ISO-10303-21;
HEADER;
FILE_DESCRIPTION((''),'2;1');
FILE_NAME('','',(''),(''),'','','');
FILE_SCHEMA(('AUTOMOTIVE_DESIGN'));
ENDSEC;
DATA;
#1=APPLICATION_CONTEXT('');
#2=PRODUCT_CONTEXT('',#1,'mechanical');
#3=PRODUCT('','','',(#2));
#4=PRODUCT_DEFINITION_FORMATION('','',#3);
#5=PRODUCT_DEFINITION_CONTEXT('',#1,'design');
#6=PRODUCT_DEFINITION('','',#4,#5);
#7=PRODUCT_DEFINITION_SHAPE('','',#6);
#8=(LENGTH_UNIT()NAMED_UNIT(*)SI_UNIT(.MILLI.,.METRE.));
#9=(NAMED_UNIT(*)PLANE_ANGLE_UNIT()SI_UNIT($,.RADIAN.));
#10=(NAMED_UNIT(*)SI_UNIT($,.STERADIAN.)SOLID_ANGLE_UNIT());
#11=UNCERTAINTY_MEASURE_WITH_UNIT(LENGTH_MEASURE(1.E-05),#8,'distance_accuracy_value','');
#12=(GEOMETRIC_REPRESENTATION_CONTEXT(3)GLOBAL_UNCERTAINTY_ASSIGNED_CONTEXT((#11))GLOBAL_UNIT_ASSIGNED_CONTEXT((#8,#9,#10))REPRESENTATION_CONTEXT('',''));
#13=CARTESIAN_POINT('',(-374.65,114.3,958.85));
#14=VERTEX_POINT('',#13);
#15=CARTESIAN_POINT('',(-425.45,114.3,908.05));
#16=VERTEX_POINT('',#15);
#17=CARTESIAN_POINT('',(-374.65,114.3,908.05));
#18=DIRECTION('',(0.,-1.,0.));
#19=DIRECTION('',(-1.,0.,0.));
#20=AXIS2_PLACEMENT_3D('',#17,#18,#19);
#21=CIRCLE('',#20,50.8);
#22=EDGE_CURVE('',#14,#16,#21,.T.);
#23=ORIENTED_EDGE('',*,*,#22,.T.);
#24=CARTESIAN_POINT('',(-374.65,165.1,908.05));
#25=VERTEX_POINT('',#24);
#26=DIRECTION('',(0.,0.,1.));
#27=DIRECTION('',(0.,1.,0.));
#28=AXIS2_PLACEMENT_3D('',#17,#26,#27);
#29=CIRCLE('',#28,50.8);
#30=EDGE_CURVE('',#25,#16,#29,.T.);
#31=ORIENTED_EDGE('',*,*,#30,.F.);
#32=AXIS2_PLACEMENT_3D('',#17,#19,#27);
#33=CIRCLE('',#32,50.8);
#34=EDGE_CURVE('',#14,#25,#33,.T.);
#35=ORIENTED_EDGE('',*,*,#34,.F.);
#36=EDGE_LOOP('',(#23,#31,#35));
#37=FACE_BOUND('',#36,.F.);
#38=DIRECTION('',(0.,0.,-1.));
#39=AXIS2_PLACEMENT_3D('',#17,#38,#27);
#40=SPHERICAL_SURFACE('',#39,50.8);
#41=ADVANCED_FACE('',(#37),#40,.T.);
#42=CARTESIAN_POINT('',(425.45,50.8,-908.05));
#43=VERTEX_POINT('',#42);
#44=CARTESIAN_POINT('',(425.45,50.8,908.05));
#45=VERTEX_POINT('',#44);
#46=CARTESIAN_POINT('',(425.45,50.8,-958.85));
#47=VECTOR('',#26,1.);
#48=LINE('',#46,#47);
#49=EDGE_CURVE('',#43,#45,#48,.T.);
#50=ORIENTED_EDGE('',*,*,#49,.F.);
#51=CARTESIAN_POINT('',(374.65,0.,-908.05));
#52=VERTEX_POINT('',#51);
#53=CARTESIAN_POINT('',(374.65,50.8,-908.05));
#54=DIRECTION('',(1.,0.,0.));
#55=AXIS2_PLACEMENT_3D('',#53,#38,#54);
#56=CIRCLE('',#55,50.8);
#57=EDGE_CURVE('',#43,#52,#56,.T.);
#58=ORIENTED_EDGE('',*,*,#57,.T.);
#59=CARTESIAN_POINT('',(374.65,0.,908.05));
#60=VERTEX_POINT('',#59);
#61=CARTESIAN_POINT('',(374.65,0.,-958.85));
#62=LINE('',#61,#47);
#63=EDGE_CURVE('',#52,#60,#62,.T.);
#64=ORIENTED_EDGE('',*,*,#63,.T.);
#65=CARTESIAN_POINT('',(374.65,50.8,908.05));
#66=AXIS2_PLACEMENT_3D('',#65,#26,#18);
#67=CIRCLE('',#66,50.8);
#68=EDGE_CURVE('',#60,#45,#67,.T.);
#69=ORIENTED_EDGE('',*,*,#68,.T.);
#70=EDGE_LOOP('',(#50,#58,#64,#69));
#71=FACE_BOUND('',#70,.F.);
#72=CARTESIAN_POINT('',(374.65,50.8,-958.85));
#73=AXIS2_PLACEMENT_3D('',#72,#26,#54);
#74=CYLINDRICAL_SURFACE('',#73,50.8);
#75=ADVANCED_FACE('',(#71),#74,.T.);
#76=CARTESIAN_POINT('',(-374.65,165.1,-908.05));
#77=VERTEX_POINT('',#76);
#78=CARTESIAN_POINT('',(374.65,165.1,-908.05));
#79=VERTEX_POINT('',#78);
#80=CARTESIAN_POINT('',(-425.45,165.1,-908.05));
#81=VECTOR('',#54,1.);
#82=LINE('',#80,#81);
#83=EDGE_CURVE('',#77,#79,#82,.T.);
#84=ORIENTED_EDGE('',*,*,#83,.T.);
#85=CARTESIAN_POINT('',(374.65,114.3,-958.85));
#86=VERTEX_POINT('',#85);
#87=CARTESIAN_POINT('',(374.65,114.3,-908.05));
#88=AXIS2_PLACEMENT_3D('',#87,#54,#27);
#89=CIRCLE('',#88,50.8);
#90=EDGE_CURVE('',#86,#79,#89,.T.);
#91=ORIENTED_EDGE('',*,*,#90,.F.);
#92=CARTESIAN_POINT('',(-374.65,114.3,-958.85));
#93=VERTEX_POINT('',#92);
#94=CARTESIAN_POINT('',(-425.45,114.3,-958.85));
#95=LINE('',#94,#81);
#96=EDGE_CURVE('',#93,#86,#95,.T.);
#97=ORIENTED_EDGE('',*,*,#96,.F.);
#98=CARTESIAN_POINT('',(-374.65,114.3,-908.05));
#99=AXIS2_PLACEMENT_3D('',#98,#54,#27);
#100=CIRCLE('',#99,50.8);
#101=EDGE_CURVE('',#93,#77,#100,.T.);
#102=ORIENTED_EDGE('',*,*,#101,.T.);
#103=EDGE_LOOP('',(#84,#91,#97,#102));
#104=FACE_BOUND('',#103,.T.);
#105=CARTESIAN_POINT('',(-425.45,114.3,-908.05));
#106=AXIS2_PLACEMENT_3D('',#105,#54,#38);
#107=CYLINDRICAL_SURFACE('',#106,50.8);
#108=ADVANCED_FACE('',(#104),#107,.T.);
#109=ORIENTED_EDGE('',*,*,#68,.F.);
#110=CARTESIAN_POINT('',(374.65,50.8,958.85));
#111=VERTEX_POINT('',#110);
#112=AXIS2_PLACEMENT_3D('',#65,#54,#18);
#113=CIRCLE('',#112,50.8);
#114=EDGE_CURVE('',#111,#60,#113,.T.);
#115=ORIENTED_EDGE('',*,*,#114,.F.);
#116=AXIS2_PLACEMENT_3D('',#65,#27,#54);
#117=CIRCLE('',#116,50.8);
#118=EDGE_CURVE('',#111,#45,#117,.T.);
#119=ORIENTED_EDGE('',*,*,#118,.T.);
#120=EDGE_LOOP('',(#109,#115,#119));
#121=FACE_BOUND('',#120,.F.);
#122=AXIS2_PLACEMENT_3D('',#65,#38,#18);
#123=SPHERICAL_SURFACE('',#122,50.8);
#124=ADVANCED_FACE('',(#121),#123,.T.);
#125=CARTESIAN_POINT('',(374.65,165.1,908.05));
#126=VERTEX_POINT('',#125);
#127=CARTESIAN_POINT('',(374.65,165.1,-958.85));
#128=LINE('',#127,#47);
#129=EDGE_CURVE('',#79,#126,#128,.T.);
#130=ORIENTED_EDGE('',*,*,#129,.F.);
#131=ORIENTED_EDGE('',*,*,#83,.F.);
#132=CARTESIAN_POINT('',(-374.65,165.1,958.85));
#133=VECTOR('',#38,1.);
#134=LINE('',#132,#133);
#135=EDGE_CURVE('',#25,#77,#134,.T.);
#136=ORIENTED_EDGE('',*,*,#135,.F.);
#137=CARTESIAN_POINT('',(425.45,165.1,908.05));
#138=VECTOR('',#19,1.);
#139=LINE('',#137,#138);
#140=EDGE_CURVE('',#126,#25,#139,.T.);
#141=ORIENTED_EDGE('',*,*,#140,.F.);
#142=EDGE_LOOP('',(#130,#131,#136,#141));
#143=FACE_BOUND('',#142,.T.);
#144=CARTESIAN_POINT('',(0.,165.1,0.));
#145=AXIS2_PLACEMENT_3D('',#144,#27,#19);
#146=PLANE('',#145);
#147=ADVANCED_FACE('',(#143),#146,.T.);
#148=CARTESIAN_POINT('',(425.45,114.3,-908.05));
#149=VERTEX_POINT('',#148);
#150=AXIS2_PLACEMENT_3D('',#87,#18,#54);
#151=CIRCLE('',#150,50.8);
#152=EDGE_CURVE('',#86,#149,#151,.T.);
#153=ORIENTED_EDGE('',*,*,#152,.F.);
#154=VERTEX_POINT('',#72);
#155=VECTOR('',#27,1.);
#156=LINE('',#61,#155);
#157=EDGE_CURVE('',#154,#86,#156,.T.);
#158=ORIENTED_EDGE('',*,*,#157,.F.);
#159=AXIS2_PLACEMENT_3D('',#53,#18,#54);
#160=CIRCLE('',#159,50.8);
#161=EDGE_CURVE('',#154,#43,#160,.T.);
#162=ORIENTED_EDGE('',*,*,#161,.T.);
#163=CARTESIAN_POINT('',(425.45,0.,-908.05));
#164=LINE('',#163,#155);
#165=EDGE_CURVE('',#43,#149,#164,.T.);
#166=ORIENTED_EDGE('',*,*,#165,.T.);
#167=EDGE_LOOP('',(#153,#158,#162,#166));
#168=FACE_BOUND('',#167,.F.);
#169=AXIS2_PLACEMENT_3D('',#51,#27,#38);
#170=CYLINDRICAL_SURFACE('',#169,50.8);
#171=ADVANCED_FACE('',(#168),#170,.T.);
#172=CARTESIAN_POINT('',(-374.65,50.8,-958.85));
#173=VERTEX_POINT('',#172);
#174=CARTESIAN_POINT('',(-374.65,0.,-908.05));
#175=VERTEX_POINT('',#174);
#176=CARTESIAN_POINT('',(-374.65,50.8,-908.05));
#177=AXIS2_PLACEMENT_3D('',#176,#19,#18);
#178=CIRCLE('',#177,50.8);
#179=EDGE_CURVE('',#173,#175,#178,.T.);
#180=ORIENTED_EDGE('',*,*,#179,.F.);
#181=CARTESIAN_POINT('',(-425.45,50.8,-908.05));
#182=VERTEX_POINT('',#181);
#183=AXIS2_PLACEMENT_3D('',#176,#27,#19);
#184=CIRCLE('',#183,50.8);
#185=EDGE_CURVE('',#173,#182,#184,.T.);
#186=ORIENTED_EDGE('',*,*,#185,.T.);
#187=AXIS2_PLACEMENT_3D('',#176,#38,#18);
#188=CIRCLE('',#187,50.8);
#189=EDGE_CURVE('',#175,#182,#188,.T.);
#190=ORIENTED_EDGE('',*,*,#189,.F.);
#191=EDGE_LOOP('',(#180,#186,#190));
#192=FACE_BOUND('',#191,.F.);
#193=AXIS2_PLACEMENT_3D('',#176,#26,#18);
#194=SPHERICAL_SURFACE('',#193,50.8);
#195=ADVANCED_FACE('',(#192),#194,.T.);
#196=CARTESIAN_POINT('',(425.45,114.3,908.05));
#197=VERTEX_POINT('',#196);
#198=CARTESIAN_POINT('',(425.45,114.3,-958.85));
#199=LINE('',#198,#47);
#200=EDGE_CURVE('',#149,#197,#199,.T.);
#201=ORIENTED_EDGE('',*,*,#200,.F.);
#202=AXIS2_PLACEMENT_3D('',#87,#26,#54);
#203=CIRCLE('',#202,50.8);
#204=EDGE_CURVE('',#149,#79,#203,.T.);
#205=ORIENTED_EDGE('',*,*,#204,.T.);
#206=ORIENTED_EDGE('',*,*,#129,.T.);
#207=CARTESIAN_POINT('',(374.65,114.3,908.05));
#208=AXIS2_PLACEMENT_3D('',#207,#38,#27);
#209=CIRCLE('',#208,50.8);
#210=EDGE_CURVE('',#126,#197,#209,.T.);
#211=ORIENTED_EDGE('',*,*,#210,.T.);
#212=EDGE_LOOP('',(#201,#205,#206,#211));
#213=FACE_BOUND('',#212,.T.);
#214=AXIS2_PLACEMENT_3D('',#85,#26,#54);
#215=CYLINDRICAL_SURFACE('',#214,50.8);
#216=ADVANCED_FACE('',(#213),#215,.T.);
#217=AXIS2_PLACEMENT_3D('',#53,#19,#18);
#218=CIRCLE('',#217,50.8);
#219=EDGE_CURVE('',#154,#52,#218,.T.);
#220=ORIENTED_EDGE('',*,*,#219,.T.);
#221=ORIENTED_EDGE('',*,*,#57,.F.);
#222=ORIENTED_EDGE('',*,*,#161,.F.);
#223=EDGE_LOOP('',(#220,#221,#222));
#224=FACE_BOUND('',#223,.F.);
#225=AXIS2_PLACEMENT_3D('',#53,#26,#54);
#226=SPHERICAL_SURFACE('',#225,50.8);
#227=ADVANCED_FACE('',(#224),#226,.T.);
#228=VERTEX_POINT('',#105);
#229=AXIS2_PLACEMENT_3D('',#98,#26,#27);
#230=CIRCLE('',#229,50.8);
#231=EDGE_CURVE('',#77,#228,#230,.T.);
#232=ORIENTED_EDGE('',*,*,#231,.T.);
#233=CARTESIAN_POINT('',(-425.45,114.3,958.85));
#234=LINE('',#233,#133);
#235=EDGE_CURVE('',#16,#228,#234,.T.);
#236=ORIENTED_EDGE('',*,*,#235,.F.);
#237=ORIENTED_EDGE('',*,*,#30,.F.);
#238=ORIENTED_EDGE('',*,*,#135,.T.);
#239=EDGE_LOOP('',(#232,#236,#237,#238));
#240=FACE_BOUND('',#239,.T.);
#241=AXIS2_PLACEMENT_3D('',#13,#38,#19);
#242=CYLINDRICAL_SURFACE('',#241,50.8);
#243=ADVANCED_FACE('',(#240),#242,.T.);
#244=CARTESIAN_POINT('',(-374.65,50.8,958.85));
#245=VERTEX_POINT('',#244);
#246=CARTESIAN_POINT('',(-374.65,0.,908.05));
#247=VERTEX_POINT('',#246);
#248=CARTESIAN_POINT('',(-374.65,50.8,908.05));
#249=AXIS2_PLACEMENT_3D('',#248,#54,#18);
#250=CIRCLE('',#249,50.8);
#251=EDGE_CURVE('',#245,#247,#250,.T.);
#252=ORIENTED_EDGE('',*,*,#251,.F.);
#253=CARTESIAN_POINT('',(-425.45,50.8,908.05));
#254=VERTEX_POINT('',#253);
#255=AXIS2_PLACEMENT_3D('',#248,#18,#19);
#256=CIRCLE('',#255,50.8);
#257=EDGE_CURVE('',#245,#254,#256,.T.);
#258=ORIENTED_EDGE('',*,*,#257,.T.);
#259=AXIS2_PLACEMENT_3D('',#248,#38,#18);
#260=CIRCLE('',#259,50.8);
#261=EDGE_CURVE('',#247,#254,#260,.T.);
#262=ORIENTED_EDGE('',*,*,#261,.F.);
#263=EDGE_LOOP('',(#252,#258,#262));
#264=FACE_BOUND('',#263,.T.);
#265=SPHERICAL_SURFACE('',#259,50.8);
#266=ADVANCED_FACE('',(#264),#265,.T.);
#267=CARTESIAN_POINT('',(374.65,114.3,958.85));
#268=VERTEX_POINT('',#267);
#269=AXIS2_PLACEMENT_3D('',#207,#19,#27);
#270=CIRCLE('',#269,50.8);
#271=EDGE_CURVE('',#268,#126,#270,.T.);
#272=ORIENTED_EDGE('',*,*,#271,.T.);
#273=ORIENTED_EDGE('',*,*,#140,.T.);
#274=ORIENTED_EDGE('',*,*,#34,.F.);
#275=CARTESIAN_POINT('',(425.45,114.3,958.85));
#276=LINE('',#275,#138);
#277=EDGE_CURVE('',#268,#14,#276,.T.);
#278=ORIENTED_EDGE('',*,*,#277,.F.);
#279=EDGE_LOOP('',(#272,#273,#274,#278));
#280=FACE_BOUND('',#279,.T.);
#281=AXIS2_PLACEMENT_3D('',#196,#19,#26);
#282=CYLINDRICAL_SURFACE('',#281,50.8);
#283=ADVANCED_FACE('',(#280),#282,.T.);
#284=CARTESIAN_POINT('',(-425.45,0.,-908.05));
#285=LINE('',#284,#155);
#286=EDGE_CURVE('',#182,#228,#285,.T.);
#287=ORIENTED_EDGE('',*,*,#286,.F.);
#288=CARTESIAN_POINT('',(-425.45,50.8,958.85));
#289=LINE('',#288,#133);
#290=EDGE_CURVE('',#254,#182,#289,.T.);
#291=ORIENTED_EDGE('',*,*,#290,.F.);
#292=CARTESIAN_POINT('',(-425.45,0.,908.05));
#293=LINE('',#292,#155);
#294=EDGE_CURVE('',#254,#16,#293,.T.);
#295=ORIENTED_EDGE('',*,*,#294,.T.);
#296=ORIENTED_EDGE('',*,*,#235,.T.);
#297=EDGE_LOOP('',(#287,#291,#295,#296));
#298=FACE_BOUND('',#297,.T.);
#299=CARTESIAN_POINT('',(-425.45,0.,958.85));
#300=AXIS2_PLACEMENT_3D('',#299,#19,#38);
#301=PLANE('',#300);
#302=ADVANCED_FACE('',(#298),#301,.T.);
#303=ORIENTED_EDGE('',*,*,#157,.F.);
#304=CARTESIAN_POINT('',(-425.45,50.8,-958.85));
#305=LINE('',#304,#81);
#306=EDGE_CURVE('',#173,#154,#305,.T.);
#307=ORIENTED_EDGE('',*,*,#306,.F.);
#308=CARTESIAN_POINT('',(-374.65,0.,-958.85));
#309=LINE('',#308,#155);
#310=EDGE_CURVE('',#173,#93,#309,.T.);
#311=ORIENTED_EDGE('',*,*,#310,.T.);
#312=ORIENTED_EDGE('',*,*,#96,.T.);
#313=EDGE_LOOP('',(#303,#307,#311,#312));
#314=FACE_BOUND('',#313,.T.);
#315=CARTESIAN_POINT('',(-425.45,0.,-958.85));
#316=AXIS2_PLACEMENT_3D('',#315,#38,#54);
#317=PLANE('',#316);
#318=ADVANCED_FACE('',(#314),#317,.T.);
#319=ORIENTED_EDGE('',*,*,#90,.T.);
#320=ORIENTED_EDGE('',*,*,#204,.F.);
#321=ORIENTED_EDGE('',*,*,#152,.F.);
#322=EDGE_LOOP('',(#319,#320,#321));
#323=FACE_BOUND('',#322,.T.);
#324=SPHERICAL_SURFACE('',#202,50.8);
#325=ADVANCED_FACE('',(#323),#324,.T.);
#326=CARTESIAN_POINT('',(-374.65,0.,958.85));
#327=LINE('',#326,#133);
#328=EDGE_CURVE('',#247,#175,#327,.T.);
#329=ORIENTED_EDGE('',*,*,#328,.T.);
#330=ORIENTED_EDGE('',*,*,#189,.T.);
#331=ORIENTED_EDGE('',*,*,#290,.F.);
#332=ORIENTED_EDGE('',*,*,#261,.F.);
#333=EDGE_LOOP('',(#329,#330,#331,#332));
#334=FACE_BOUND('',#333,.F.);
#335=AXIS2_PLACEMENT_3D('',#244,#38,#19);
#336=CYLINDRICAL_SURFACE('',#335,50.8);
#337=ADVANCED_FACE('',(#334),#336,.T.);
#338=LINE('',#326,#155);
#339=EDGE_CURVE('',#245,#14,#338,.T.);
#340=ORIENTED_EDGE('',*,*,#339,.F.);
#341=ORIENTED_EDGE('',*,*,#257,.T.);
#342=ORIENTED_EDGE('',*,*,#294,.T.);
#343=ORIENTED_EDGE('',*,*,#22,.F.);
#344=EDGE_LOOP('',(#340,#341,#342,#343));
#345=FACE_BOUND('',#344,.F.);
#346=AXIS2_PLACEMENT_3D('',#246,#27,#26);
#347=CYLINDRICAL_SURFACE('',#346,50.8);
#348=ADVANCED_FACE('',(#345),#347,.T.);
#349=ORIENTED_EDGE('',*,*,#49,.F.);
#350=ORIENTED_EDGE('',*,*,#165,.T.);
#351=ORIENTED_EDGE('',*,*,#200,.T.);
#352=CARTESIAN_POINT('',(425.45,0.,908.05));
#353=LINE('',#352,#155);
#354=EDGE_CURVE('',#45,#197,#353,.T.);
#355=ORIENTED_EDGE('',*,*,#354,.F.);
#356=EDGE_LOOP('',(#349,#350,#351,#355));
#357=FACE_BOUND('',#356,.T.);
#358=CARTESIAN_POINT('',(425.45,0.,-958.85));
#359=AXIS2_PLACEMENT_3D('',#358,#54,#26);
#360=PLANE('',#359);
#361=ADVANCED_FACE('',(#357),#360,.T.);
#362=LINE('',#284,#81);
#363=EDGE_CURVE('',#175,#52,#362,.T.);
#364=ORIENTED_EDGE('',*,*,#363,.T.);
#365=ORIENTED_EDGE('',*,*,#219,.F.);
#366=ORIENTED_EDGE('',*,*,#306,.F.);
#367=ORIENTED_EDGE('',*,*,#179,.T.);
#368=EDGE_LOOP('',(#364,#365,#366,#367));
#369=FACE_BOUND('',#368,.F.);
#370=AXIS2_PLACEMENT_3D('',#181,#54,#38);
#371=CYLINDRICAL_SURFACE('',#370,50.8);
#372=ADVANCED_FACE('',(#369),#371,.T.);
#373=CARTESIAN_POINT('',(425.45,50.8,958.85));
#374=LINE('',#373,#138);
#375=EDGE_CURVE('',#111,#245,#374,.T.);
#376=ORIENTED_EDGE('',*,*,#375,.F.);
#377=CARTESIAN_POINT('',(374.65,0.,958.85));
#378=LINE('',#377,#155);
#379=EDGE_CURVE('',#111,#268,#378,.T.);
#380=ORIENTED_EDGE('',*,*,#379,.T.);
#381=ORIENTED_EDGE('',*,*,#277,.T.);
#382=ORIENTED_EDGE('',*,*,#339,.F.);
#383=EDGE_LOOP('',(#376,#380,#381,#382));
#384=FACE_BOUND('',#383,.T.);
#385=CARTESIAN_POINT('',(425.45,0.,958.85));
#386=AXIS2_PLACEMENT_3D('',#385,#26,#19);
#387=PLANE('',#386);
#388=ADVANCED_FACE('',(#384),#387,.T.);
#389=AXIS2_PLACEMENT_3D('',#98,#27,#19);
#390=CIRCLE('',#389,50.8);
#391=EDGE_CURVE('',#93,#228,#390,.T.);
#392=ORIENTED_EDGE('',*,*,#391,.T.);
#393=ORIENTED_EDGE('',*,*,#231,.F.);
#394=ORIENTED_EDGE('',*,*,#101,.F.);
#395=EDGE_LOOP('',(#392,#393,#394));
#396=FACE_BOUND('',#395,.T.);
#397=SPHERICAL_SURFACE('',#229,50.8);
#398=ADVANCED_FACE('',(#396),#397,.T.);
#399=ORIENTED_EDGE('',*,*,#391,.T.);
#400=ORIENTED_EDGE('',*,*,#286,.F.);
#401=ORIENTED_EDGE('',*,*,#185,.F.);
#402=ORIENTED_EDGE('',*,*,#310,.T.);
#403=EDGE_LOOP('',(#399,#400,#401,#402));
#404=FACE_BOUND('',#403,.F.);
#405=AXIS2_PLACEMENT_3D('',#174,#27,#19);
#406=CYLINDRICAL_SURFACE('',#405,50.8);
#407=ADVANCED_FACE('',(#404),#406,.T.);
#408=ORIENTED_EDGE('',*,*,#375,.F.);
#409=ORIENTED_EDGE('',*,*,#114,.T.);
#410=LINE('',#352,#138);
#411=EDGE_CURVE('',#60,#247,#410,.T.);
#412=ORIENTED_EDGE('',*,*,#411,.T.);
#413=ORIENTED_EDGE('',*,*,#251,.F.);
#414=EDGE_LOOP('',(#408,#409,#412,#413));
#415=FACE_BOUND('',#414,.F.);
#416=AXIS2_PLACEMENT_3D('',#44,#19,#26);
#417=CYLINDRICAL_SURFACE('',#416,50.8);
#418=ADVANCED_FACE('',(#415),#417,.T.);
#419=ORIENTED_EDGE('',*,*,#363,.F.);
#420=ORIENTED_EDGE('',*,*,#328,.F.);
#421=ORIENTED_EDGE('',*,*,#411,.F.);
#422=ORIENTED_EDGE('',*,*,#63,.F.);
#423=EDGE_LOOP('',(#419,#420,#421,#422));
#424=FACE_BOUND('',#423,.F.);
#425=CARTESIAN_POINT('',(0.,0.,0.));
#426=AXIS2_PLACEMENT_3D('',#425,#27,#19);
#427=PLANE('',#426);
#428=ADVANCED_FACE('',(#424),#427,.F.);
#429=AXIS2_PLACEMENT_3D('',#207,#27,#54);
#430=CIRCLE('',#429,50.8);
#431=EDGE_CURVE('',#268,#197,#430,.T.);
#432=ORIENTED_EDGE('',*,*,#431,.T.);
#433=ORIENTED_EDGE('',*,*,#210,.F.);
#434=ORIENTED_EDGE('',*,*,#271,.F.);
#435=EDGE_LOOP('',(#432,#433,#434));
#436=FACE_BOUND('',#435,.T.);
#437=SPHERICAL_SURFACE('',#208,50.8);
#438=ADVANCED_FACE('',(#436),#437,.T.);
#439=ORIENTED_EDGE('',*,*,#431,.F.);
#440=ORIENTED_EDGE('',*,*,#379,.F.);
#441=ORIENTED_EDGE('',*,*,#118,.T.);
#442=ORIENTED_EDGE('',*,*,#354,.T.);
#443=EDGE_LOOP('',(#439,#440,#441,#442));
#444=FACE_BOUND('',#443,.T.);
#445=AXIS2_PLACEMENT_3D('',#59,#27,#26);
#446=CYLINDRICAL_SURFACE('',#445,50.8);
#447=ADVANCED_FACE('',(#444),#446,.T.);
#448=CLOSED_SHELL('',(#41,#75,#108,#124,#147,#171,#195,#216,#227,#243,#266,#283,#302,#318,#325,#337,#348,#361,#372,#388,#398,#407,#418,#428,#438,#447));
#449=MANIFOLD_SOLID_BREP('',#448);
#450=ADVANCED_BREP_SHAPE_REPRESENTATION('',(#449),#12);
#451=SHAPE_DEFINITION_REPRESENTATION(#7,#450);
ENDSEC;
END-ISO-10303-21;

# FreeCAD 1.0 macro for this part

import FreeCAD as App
import Part
import Sketcher
Q = App.Units.Quantity


def add_polygon(sketch, points):
    """Adds a closed chain of lines whose ends are joined by coincident constraints."""
    first, n = sketch.GeometryCount, len(points)
    for a, b in zip(points, points[1:] + points[:1]):
        sketch.addGeometry(Part.LineSegment(App.Vector(*a, 0), App.Vector(*b, 0)), False)
    for i in range(n):
        sketch.addConstraint(Sketcher.Constraint("Coincident", first + i, 2, first + (i + 1) % n, 1))

doc = App.newDocument("Part")
body = doc.addObject("PartDesign::Body", "Body")

# Sketch on XZ plane
sketch1 = doc.addObject("Sketcher::SketchObject", "Sketch")
body.addObject(sketch1)
sketch1.AttachmentSupport = (doc.XZ_Plane, [""])
sketch1.MapMode = "FlatFace"
add_polygon(sketch1, [(-425, 959), (425, 959), (425, -959), (-425, -959)])  # lines 0-3
sketch1.addConstraint([
    Sketcher.Constraint("Horizontal", 0),
    Sketcher.Constraint("Vertical", 1),
    Sketcher.Constraint("Horizontal", 2),
    Sketcher.Constraint("Vertical", 3),
    Sketcher.Constraint("Symmetric", 0, 2, 2, 2, -1, 1),
    Sketcher.Constraint("DistanceX", 0, 1, 0, 2, Q("33.5 in")),
    Sketcher.Constraint("DistanceY", 1, 2, 1, 1, Q("75.5 in")),
])
pad1 = doc.addObject("PartDesign::Pad", "Pad")
body.addObject(pad1)
pad1.Profile = sketch1
pad1.Length = Q("6.5 in")
pad1.Reversed = True
doc.recompute()

fillet = doc.addObject("PartDesign::Fillet", "Fillet")
body.addObject(fillet)
fillet.Base = (pad1, ["Edge1"])
fillet.UseAllEdges = True
fillet.Radius = Q("2 in")

doc.recompute()
